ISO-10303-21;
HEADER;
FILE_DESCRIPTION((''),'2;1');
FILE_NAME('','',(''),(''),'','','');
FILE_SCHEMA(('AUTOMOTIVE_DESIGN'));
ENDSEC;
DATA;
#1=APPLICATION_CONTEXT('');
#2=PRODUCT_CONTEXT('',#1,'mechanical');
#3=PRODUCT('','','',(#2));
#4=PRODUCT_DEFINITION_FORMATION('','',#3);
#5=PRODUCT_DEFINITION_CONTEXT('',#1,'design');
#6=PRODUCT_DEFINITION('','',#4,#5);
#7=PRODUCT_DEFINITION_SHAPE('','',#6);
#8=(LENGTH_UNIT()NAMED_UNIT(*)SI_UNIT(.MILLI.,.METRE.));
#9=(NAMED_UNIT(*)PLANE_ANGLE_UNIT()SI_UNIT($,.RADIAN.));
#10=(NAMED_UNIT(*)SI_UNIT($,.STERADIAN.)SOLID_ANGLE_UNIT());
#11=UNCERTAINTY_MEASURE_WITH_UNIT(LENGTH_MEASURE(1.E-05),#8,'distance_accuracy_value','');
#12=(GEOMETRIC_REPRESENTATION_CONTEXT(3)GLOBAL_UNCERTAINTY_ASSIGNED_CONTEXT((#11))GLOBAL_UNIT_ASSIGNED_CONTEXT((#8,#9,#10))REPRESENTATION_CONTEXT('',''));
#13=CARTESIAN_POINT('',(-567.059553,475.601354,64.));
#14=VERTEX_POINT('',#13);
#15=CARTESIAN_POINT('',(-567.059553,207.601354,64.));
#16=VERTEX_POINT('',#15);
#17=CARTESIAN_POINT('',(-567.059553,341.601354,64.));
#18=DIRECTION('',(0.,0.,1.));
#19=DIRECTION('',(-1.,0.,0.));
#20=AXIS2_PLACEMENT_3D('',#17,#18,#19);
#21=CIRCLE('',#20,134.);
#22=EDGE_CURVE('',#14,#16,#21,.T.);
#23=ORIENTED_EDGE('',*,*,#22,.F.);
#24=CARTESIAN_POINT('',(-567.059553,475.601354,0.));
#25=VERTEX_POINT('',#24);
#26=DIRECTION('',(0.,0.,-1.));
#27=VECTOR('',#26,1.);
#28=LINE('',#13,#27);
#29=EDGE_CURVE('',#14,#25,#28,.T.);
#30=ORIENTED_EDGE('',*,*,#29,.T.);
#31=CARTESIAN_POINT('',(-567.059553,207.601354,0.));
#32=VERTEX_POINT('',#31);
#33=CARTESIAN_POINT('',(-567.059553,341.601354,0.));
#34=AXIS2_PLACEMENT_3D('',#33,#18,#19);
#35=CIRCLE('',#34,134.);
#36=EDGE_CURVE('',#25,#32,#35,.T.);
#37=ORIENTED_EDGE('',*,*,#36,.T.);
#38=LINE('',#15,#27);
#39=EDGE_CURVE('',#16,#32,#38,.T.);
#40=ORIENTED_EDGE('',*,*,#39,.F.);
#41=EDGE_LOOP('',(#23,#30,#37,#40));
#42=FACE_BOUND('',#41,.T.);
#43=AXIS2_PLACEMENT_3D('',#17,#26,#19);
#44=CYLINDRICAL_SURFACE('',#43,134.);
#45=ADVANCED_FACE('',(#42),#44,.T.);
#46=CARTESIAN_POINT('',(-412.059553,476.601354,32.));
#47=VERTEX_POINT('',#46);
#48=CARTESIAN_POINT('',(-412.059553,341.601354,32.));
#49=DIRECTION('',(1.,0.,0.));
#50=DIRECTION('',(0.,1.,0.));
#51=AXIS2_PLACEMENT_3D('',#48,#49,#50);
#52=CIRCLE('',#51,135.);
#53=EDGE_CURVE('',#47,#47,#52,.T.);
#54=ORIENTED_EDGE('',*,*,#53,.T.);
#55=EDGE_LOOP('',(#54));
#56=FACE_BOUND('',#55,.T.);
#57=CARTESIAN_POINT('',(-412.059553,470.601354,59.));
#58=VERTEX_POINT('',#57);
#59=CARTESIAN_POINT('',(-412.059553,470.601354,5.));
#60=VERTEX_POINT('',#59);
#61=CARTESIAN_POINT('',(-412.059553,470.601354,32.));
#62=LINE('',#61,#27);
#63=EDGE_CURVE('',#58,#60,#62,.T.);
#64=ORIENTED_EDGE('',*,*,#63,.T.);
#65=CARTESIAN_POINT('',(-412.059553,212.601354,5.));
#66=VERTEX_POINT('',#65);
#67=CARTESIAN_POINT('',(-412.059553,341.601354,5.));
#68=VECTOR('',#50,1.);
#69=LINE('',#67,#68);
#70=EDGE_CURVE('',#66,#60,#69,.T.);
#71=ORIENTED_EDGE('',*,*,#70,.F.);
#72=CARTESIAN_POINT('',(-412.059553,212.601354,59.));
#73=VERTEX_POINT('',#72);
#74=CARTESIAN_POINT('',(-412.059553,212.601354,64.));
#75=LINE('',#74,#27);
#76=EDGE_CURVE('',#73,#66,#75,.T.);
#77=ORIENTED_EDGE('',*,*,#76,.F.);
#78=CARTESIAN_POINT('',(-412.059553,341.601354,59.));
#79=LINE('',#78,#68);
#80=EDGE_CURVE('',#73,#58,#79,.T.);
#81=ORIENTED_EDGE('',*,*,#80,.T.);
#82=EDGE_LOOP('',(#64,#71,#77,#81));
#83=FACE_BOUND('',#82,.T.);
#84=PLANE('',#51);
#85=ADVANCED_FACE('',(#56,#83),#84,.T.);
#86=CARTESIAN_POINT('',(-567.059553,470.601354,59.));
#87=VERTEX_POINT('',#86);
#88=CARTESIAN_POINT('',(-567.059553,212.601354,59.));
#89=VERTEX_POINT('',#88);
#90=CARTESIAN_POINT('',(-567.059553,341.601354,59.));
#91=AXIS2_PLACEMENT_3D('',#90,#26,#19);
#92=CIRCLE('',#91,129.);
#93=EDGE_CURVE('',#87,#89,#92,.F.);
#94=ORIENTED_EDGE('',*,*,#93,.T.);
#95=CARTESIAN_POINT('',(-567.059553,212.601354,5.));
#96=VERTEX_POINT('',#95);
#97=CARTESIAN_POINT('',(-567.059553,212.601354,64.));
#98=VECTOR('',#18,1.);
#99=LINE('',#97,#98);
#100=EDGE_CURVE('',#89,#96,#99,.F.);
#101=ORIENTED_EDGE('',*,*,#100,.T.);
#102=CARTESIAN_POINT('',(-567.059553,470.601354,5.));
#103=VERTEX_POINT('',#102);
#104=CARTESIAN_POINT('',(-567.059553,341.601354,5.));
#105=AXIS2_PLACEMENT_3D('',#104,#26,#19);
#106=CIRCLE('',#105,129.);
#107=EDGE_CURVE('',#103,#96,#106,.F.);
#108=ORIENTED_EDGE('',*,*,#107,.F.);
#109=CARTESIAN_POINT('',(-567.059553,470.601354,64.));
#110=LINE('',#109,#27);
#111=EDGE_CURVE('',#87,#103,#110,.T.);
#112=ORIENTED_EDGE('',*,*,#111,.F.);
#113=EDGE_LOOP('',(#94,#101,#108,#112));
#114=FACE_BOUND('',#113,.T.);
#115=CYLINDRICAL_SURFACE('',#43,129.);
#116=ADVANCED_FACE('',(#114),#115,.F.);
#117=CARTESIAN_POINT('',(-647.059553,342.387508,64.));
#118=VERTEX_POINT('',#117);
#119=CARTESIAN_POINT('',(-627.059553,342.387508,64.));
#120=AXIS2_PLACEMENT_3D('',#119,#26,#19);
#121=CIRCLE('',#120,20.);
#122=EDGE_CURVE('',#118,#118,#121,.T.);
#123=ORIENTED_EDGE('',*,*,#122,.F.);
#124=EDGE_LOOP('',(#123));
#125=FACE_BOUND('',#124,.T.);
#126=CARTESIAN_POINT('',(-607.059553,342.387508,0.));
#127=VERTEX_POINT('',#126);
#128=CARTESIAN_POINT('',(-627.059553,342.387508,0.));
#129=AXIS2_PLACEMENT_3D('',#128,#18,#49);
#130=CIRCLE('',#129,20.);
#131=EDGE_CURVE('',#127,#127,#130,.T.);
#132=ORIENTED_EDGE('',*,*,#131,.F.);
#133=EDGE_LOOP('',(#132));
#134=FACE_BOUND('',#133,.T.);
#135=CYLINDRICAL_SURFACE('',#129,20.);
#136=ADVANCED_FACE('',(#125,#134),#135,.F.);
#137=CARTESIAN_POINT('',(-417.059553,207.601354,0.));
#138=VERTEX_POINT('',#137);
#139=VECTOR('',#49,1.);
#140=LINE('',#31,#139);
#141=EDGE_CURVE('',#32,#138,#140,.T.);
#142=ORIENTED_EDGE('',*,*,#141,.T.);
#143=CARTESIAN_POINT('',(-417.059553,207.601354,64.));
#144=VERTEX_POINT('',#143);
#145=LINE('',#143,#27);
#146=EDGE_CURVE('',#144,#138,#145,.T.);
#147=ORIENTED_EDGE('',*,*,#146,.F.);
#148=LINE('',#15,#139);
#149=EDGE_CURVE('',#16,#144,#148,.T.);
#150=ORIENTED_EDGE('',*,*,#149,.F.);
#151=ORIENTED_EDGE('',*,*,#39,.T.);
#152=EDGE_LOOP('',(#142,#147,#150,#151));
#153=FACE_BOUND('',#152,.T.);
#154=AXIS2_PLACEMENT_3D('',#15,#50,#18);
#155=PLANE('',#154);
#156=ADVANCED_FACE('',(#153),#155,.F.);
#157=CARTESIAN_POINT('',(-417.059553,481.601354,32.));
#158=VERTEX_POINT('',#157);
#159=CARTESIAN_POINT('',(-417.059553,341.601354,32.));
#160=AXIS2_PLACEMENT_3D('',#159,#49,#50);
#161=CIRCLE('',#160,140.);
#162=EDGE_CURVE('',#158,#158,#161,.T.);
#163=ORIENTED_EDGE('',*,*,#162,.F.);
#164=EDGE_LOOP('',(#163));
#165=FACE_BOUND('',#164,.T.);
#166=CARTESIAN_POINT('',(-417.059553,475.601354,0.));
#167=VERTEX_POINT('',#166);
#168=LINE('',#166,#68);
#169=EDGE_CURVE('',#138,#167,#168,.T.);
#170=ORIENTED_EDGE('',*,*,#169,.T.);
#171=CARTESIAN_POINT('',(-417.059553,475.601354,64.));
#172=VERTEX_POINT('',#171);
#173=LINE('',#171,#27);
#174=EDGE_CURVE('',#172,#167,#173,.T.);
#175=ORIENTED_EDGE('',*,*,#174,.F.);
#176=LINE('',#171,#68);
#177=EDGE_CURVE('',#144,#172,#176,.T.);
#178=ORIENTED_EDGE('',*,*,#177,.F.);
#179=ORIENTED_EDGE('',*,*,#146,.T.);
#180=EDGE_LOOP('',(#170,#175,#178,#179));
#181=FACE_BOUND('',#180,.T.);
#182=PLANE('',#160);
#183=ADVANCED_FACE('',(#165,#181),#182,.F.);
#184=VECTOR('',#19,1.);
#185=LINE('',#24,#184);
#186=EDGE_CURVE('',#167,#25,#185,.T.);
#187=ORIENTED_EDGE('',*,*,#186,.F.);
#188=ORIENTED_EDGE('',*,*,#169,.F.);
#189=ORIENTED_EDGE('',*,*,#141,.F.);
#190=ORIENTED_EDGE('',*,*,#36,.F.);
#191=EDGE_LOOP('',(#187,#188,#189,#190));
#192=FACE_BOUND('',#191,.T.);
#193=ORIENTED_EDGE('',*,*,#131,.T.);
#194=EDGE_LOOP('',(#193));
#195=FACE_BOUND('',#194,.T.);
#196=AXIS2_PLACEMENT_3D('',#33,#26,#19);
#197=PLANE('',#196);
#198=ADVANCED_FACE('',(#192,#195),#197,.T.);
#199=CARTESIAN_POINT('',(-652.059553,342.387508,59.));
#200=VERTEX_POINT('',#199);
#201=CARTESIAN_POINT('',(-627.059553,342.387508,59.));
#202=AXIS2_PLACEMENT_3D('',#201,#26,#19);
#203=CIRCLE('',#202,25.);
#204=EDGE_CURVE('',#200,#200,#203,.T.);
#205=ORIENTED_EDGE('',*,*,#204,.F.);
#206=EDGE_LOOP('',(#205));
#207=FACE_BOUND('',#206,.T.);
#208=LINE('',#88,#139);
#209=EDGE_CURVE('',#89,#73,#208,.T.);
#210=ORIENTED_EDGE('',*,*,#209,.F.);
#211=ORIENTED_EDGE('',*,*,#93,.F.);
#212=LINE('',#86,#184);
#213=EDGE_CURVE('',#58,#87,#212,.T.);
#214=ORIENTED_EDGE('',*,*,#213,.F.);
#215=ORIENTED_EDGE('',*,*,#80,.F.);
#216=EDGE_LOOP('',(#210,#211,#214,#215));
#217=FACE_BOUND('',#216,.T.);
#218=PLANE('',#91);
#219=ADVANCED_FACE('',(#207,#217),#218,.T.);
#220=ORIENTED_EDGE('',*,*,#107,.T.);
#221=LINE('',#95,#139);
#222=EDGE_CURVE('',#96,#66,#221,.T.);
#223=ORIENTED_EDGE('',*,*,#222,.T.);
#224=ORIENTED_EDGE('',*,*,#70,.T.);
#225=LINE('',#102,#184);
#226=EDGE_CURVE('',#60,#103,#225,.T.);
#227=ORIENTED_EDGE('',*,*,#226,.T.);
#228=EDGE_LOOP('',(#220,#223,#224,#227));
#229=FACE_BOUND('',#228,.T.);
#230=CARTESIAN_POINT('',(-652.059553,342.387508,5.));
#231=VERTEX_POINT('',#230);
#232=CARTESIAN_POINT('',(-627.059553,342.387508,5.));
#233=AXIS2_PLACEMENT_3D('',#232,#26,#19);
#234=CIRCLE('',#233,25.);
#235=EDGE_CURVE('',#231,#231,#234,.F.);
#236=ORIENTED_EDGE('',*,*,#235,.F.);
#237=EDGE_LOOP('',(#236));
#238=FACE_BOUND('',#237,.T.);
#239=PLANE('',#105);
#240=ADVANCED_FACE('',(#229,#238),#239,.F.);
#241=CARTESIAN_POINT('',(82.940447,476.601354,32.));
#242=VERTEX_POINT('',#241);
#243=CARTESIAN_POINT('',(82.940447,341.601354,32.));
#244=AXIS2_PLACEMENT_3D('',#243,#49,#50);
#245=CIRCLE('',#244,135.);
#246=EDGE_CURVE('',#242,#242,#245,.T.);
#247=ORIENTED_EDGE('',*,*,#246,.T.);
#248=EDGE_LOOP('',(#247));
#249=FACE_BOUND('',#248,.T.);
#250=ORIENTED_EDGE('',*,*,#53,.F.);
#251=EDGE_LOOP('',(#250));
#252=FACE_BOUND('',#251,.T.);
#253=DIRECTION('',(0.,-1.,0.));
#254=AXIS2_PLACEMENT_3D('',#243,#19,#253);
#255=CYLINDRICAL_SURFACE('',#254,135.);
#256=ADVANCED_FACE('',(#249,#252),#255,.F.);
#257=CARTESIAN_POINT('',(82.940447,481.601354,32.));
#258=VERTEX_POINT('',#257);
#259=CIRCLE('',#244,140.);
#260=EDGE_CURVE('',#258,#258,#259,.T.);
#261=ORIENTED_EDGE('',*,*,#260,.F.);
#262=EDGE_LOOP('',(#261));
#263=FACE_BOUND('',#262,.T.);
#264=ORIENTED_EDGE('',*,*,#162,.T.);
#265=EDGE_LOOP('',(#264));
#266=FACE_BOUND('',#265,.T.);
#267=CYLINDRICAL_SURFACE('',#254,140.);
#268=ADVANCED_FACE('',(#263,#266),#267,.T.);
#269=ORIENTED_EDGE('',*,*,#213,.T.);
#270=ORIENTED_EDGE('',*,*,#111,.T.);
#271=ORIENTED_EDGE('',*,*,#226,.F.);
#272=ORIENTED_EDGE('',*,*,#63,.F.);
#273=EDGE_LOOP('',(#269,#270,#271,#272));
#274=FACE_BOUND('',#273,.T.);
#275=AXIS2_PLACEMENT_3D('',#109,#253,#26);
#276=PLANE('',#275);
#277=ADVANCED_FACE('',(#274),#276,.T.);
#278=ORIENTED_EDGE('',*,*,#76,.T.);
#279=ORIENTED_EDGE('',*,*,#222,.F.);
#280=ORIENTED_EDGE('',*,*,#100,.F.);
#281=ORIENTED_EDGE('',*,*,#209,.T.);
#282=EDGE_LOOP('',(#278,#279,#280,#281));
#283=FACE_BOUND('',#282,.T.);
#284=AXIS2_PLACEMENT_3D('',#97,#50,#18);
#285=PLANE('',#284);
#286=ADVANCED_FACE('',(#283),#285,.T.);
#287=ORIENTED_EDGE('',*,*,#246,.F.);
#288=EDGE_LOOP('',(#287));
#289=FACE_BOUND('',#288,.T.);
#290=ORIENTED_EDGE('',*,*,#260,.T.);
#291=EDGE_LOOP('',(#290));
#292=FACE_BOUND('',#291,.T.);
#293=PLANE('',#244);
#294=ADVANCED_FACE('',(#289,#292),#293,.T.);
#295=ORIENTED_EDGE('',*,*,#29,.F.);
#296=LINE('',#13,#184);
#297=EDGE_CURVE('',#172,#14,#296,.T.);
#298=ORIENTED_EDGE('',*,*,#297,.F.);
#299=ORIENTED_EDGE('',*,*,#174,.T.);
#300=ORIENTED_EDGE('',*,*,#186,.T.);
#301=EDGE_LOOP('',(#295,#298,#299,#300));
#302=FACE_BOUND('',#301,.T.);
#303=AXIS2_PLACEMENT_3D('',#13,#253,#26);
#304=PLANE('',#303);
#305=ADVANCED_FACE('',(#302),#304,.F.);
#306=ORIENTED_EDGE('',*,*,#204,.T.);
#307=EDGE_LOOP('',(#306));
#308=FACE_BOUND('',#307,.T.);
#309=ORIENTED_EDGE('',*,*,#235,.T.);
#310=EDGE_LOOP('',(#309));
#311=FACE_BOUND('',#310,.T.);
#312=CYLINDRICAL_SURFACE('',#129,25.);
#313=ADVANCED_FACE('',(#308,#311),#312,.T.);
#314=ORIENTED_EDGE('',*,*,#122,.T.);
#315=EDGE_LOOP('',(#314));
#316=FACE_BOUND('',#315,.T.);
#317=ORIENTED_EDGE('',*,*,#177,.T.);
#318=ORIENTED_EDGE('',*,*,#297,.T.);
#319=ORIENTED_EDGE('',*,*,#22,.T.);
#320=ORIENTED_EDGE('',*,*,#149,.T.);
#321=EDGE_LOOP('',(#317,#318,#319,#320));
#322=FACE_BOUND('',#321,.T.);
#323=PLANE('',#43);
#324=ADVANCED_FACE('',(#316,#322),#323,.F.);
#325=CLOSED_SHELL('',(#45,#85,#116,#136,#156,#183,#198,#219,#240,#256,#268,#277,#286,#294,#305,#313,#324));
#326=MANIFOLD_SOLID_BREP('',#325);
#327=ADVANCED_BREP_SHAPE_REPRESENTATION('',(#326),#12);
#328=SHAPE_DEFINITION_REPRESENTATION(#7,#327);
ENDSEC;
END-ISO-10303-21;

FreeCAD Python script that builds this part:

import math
import FreeCAD as App
import Part
import Sketcher


def faces_at(feature, points):
    """Names of the faces that lie closest to the given points."""
    faces = feature.Shape.Faces
    near = lambda p: min(range(len(faces)), key=lambda i: faces[i].distToShape(Part.Vertex(*p))[0])
    return sorted({f"Face{near(p) + 1}" for p in points})

doc = App.newDocument("Part")
body = doc.addObject("PartDesign::Body", "Body")

sketch1 = body.newObject("Sketcher::SketchObject", "Sketch")
sketch1.AttachmentSupport = (doc.getObject("XY_Plane"), [""])
sketch1.MapMode = "FlatFace"
sketch1.addGeometry(Part.LineSegment(App.Vector(-567.059553, 207.601354, 0), App.Vector(-417.059553, 207.601354, 0)), False)
sketch1.addGeometry(Part.LineSegment(App.Vector(-417.059553, 207.601354, 0), App.Vector(-417.059553, 475.601354, 0)), False)
sketch1.addGeometry(Part.LineSegment(App.Vector(-417.059553, 475.601354, 0), App.Vector(-567.059553, 475.601354, 0)), False)
sketch1.addGeometry(Part.ArcOfCircle(Part.Circle(App.Vector(-567.059553, 341.601354, 0), App.Vector(0, 0, 1), 134), math.radians(90), math.radians(270)), False)
sketch1.addConstraint(Sketcher.Constraint("Coincident", 0, 2, 1, 1))
sketch1.addConstraint(Sketcher.Constraint("Coincident", 1, 2, 2, 1))
sketch1.addConstraint(Sketcher.Constraint("Tangent", 2, 2, 3, 1))
sketch1.addConstraint(Sketcher.Constraint("Tangent", 3, 2, 0, 1))
sketch1.addConstraint(Sketcher.Constraint("Horizontal", 0))
sketch1.addConstraint(Sketcher.Constraint("Vertical", 1))
sketch1.addConstraint(Sketcher.Constraint("Horizontal", 2))
sketch1.addConstraint(Sketcher.Constraint("Radius", 3, 134.0))
sketch1.addConstraint(Sketcher.Constraint("DistanceX", 0, 1, 0, 2, 150.0))
sketch1.addConstraint(Sketcher.Constraint("DistanceX", 3, 3, -1, 1, 567.059553))
sketch1.addConstraint(Sketcher.Constraint("DistanceY", -1, 1, 3, 3, 341.601354))
pad1 = body.newObject("PartDesign::Pad", "Pad")
pad1.Profile = sketch1
pad1.Length = 64

sketch2 = body.newObject("Sketcher::SketchObject", "Sketch001")
sketch2.AttachmentSupport = (doc.getObject("XY_Plane"), [""])
sketch2.MapMode = "FlatFace"
sketch2.AttachmentOffset = App.Placement(App.Vector(0, 0, 64), App.Rotation())
sketch2.addGeometry(Part.Circle(App.Vector(-627.059553, 342.387508, 0), App.Vector(0, 0, 1), 20), False)
sketch2.addConstraint(Sketcher.Constraint("Diameter", 0, 40.0))
sketch2.addConstraint(Sketcher.Constraint("DistanceY", -1, 1, 0, 3, 342.387508))
sketch2.addConstraint(Sketcher.Constraint("DistanceX", 0, 3, -1, 1, 627.059553))
pocket1 = body.newObject("PartDesign::Pocket", "Pocket")
pocket1.Profile = sketch2
pocket1.Type = "ThroughAll"
pocket1.Midplane = True

sketch3 = body.newObject("Sketcher::SketchObject", "Sketch002")
sketch3.AttachmentSupport = (doc.getObject("YZ_Plane"), [""])
sketch3.MapMode = "FlatFace"
sketch3.AttachmentOffset = App.Placement(App.Vector(0, 0, -417.059553), App.Rotation())
sketch3.addGeometry(Part.Circle(App.Vector(341.601354, 32, 0), App.Vector(0, 0, 1), 140), False)
sketch3.addConstraint(Sketcher.Constraint("Diameter", 0, 280.0))
sketch3.addConstraint(Sketcher.Constraint("DistanceY", -1, 1, 0, 3, 32.0))
sketch3.addConstraint(Sketcher.Constraint("DistanceX", -1, 1, 0, 3, 341.601354))
pad2 = body.newObject("PartDesign::Pad", "Pad001")
pad2.Profile = sketch3
pad2.Length = 500
doc.recompute()

thickness = body.newObject("PartDesign::Thickness", "Thickness")
thickness.Base = (pad2, faces_at(pad2, [(82.94, 341.601, 32)]))
thickness.Value = 5
thickness.Reversed = True
thickness.Join = "Intersection"

doc.recompute()
